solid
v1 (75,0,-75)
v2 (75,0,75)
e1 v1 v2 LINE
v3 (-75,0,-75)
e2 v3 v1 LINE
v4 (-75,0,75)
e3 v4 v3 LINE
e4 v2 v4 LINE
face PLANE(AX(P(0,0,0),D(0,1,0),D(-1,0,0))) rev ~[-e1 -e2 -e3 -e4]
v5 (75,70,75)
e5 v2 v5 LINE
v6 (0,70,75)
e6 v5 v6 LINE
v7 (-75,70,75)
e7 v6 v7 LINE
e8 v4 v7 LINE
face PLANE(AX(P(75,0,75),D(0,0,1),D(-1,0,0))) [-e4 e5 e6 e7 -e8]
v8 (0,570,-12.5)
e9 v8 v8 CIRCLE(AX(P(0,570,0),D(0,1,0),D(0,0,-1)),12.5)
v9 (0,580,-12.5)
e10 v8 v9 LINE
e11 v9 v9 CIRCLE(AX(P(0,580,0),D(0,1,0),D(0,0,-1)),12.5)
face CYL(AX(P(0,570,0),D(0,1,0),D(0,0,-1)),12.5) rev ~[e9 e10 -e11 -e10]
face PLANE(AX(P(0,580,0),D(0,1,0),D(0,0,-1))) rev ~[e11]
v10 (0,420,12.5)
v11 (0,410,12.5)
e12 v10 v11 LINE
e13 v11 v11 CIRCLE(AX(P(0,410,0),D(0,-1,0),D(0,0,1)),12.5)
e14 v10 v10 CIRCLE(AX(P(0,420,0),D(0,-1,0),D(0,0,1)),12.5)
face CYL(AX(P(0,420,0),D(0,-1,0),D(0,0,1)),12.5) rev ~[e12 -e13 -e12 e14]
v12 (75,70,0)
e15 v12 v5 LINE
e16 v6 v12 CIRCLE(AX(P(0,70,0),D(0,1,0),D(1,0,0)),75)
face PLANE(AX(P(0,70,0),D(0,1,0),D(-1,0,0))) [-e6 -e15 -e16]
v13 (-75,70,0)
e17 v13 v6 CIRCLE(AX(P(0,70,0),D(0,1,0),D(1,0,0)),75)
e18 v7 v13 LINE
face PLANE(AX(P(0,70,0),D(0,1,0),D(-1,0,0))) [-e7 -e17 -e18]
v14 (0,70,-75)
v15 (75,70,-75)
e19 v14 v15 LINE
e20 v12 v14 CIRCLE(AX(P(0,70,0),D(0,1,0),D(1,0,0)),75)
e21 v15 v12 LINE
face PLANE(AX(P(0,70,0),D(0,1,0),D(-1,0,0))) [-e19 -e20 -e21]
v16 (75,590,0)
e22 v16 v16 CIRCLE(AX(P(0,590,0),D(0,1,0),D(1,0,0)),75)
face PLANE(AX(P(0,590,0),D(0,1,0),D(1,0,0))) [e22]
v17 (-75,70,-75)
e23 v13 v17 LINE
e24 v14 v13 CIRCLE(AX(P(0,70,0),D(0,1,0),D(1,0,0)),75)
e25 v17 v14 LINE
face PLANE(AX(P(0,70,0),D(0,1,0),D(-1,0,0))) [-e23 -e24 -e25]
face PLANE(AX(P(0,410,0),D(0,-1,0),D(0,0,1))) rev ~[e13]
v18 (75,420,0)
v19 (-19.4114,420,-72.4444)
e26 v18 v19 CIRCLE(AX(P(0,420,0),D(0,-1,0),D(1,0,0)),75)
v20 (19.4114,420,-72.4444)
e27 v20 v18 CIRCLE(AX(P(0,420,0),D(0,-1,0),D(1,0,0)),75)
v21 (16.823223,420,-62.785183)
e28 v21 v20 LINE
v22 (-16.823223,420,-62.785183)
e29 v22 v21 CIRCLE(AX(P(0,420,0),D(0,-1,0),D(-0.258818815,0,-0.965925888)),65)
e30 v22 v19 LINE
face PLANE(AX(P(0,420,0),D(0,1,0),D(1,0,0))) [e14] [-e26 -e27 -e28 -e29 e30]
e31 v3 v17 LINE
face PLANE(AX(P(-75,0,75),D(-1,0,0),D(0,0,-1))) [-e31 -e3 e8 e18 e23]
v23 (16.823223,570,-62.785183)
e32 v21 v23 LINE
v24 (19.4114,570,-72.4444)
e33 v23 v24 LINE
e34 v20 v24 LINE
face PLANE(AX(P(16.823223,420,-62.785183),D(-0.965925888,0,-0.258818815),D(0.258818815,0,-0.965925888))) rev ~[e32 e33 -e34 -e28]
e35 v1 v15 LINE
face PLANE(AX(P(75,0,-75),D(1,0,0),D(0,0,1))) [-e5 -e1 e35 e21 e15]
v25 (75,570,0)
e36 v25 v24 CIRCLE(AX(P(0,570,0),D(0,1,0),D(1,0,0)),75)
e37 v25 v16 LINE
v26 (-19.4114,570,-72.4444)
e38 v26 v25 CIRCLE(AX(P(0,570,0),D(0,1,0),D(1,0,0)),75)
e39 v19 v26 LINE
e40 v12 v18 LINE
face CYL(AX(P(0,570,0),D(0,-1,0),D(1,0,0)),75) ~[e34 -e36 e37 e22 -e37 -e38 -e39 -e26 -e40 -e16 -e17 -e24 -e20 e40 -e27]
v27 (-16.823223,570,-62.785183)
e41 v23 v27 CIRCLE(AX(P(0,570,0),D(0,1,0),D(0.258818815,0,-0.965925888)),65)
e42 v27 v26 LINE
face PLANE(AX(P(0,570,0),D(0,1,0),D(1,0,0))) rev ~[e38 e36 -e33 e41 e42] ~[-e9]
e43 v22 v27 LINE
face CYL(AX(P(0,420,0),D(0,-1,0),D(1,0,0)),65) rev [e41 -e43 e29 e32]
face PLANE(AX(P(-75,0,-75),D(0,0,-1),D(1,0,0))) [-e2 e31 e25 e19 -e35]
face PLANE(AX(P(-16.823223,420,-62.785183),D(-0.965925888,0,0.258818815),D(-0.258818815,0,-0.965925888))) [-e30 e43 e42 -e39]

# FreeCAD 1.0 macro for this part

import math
import FreeCAD as App
import Part
import Sketcher
Q = App.Units.Quantity


def add_polygon(sketch, points):
    """Adds a closed chain of lines whose ends are joined by coincident constraints."""
    first, n = sketch.GeometryCount, len(points)
    for a, b in zip(points, points[1:] + points[:1]):
        sketch.addGeometry(Part.LineSegment(App.Vector(*a, 0), App.Vector(*b, 0)), False)
    for i in range(n):
        sketch.addConstraint(Sketcher.Constraint("Coincident", first + i, 2, first + (i + 1) % n, 1))

doc = App.newDocument("Part")
body = doc.addObject("PartDesign::Body", "Body")

# Sketch on XZ plane
sketch1 = doc.addObject("Sketcher::SketchObject", "Sketch")
body.addObject(sketch1)
sketch1.AttachmentSupport = (doc.XZ_Plane, [""])
sketch1.MapMode = "FlatFace"
add_polygon(sketch1, [(-75, 75), (75, 75), (75, -75), (-75, -75)])  # lines 0-3
sketch1.addConstraint([
    Sketcher.Constraint("Horizontal", 0),
    Sketcher.Constraint("Vertical", 1),
    Sketcher.Constraint("Horizontal", 2),
    Sketcher.Constraint("Vertical", 3),
    Sketcher.Constraint("Symmetric", 0, 2, 2, 2, -1, 1),
    Sketcher.Constraint("Equal", 2, 1),
    Sketcher.Constraint("DistanceX", 0, 1, 0, 2, Q("150 mm")),
])
pad1 = doc.addObject("PartDesign::Pad", "Pad")
body.addObject(pad1)
pad1.Profile = sketch1
pad1.Length = 70
pad1.Reversed = True

# Sketch on XZ plane
sketch2 = doc.addObject("Sketcher::SketchObject", "Sketch001")
body.addObject(sketch2)
sketch2.AttachmentSupport = (doc.XZ_Plane, [""])
sketch2.MapMode = "FlatFace"
sketch2.AttachmentOffset = App.Placement(App.Vector(0, 0, -70), App.Rotation())
sketch2.addGeometry(Part.Circle(App.Vector(0, 0, 0), App.Vector(0, 0, 1), 75), False)
sketch2.addConstraint([
    Sketcher.Constraint("Coincident", 0, 3, -1, 1),
    Sketcher.Constraint("Diameter", 0, Q("150 mm")),
])
pad2 = doc.addObject("PartDesign::Pad", "Pad001")
body.addObject(pad2)
pad2.Profile = sketch2
pad2.Length = 350
pad2.Reversed = True

# Sketch on XZ plane
sketch3 = doc.addObject("Sketcher::SketchObject", "Sketch002")
body.addObject(sketch3)
sketch3.AttachmentSupport = (doc.XZ_Plane, [""])
sketch3.MapMode = "FlatFace"
sketch3.AttachmentOffset = App.Placement(App.Vector(0, 0, -420), App.Rotation())
sketch3.addGeometry([
    Part.LineSegment(App.Vector(17, -63, 0), App.Vector(19, -72, 0)),
    Part.ArcOfCircle(Part.Circle(App.Vector(0, 0, 0), App.Vector(0, 0, 1), 75), math.radians(-105), math.radians(-75)),
    Part.LineSegment(App.Vector(-19, -72, 0), App.Vector(-17, -63, 0)),
    Part.ArcOfCircle(Part.Circle(App.Vector(0, 0, 0), App.Vector(0, 0, 1), 65), math.radians(-105), math.radians(-75)),
], False)
sketch3.addConstraint([
    Sketcher.Constraint("Coincident", 0, 2, 1, 2),
    Sketcher.Constraint("Coincident", 1, 1, 2, 1),
    Sketcher.Constraint("Coincident", 2, 2, 3, 1),
    Sketcher.Constraint("Coincident", 3, 2, 0, 1),
    Sketcher.Constraint("Coincident", 1, 3, -1, 1),
    Sketcher.Constraint("Coincident", 3, 3, -1, 1),
    Sketcher.Constraint("Horizontal", 0, 2, 1, 1),
    Sketcher.Constraint("Horizontal", 2, 2, 3, 2),
    Sketcher.Constraint("Radius", 3, Q("65 mm")),
    Sketcher.Constraint("Radius", 1, Q("75 mm")),
    Sketcher.Constraint("Angle", 0, Q("-75 deg")),
    Sketcher.Constraint("DistanceX", -1, 1, 0, 2, Q("19.4114 mm")),
])
pad3 = doc.addObject("PartDesign::Pad", "Pad002")
body.addObject(pad3)
pad3.Profile = sketch3
pad3.Length = 150
pad3.Reversed = True

# Sketch on XZ plane
sketch4 = doc.addObject("Sketcher::SketchObject", "Sketch003")
body.addObject(sketch4)
sketch4.AttachmentSupport = (doc.XZ_Plane, [""])
sketch4.MapMode = "FlatFace"
sketch4.AttachmentOffset = App.Placement(App.Vector(0, 0, -570), App.Rotation())
sketch4.addGeometry(Part.Circle(App.Vector(0, 0, 0), App.Vector(0, 0, 1), 75), False)
sketch4.addConstraint([
    Sketcher.Constraint("Coincident", 0, 3, -1, 1),
    Sketcher.Constraint("Diameter", 0, Q("150 mm")),
])
pad4 = doc.addObject("PartDesign::Pad", "Pad003")
body.addObject(pad4)
pad4.Profile = sketch4
pad4.Length = 20
pad4.Reversed = True

# Sketch on XZ plane
sketch5 = doc.addObject("Sketcher::SketchObject", "Sketch004")
body.addObject(sketch5)
sketch5.AttachmentSupport = (doc.XZ_Plane, [""])
sketch5.MapMode = "FlatFace"
sketch5.AttachmentOffset = App.Placement(App.Vector(0, 0, -420), App.Rotation())
sketch5.addGeometry(Part.Circle(App.Vector(0, 0, 0), App.Vector(0, 0, 1), 12), False)
sketch5.addConstraint([
    Sketcher.Constraint("Coincident", 0, 3, -1, 1),
    Sketcher.Constraint("Diameter", 0, Q("25 mm")),
])
doc.recompute()
hole = doc.addObject("PartDesign::Hole", "Hole")
body.addObject(hole)
hole.Profile = sketch5
hole.ThreadType = "None"
hole.Diameter = 25
hole.DepthType = "Dimension"
hole.Depth = 10
hole.DrillPoint = "Flat"
hole.Reversed = True

# Sketch on XZ plane
sketch6 = doc.addObject("Sketcher::SketchObject", "Sketch005")
body.addObject(sketch6)
sketch6.AttachmentSupport = (doc.XZ_Plane, [""])
sketch6.MapMode = "FlatFace"
sketch6.AttachmentOffset = App.Placement(App.Vector(0, 0, -570), App.Rotation())
sketch6.addGeometry(Part.Circle(App.Vector(0, 0, 0), App.Vector(0, 0, 1), 12), False)
sketch6.addConstraint([
    Sketcher.Constraint("Coincident", 0, 3, -1, 1),
    Sketcher.Constraint("Diameter", 0, Q("25 mm")),
])
doc.recompute()
hole2 = doc.addObject("PartDesign::Hole", "Hole001")
body.addObject(hole2)
hole2.Profile = sketch6
hole2.ThreadType = "None"
hole2.Diameter = 25
hole2.DepthType = "Dimension"
hole2.Depth = 10
hole2.DrillPoint = "Flat"

doc.recompute()
